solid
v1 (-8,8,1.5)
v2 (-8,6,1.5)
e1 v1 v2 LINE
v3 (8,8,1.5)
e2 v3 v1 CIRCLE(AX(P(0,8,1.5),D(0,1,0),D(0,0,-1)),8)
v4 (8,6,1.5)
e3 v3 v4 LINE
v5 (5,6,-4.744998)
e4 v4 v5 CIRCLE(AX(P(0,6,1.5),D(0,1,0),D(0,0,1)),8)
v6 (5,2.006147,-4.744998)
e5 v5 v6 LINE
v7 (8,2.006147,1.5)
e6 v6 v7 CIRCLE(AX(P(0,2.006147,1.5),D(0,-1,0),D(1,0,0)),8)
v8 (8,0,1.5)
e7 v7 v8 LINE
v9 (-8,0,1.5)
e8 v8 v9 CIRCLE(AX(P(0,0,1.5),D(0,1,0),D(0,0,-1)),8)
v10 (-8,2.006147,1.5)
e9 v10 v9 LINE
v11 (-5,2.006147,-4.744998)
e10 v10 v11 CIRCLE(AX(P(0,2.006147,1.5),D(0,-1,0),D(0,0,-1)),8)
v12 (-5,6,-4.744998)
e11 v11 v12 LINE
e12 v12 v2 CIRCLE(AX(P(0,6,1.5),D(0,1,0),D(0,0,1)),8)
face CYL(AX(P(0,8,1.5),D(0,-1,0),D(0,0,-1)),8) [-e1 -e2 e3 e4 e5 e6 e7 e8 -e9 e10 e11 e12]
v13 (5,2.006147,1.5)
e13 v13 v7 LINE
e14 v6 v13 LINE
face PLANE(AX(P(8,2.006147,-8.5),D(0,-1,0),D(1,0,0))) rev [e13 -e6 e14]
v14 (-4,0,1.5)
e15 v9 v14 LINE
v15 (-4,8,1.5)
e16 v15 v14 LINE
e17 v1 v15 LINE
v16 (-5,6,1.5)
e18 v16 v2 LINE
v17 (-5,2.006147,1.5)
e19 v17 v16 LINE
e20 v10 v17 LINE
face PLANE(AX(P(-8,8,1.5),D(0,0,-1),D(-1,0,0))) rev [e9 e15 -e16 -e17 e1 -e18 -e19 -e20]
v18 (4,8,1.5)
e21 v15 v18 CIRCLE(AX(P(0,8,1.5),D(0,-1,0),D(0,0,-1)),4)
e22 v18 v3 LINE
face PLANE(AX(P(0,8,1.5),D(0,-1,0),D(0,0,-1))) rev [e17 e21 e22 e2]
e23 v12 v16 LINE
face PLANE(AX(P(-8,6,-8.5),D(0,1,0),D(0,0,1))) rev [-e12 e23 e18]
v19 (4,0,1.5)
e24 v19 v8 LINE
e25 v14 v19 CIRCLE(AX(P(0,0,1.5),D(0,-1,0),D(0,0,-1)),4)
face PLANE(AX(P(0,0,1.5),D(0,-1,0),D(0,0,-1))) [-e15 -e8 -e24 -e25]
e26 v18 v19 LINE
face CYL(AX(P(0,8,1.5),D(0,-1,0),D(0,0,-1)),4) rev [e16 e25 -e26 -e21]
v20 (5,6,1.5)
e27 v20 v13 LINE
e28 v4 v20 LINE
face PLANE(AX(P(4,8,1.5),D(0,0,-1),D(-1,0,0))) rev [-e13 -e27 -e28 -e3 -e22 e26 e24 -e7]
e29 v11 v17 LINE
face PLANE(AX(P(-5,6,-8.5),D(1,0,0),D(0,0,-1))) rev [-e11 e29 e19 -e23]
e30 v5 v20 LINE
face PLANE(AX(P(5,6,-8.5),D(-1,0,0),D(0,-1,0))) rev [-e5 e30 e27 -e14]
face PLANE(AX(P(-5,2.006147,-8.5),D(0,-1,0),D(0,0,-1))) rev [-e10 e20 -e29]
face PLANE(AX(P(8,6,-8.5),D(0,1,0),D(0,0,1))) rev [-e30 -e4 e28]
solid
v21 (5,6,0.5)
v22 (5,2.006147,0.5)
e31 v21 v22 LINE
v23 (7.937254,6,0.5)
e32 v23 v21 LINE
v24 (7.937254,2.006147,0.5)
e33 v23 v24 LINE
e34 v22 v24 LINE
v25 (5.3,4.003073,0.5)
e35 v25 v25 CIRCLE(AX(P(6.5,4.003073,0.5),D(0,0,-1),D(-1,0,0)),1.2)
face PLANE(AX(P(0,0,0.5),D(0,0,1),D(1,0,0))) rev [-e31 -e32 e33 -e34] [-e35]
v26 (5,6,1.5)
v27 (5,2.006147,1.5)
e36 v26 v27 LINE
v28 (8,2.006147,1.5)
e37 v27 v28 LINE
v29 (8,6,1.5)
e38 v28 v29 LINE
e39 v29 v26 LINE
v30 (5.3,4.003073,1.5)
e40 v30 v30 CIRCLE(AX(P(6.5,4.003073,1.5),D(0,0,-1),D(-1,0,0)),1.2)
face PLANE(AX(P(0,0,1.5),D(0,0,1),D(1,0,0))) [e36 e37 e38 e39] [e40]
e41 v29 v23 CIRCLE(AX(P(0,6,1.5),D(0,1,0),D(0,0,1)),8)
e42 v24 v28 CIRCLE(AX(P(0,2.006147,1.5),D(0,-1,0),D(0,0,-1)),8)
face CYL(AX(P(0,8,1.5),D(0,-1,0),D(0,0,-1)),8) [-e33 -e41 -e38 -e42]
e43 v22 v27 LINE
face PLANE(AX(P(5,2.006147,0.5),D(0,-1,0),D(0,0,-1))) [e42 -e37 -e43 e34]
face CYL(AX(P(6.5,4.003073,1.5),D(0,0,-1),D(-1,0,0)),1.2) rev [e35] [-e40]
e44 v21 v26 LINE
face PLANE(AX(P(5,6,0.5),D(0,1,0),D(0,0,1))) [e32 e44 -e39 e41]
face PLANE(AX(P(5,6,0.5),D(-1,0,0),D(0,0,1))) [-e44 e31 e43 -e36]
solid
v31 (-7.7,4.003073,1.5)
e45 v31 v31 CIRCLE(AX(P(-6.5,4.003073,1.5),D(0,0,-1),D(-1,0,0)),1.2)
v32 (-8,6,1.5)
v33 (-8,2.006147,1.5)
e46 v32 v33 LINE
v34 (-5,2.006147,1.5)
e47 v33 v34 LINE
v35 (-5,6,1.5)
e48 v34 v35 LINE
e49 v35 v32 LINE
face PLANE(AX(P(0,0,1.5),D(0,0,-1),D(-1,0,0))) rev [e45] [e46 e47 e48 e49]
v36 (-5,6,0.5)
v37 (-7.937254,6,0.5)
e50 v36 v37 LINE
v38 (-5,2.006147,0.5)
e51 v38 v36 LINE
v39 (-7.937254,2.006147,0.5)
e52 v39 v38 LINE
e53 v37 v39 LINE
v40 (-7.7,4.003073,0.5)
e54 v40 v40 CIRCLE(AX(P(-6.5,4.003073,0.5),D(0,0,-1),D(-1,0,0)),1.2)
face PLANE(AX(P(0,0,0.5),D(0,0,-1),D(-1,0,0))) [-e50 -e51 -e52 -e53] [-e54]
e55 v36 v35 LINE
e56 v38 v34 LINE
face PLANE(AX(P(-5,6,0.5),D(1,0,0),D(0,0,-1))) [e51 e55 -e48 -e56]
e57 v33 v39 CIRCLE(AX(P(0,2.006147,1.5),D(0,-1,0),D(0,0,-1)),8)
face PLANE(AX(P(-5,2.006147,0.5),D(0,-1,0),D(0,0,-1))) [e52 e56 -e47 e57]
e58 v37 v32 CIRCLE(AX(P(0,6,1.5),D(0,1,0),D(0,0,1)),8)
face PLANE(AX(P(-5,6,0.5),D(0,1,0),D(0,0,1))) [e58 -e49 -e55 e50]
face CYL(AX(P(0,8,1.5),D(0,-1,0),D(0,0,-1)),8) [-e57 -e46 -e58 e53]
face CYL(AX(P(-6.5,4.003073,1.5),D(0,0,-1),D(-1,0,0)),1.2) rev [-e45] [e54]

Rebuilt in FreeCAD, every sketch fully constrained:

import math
import FreeCAD as App
import Part
import Sketcher

V = App.Vector

doc = App.newDocument("Part")
body = doc.addObject("PartDesign::Body", "Body")

# Sketch on XZ plane
sketch1 = doc.addObject("Sketcher::SketchObject", "Sketch")
body.addObject(sketch1)
sketch1.AttachmentSupport = (doc.XZ_Plane, [""])
sketch1.MapMode = "FlatFace"
sketch1.addGeometry([
    Part.LineSegment(V(-8, 1.5, 0), V(-4, 1.5, 0)),
    Part.ArcOfCircle(Part.Circle(V(0, 1.5, 0), V(0, 0, 1), 4), math.radians(180), math.radians(360)),
    Part.LineSegment(V(4, 1.5, 0), V(8, 1.5, 0)),
    Part.ArcOfCircle(Part.Circle(V(0, 1.5, 0), V(0, 0, 1), 8), math.radians(180), math.radians(360)),
], False)
sketch1.addConstraint([
    Sketcher.Constraint("Coincident", 0, 2, 1, 1),
    Sketcher.Constraint("Coincident", 1, 2, 2, 1),
    Sketcher.Constraint("Coincident", 2, 2, 3, 2),
    Sketcher.Constraint("Coincident", 3, 1, 0, 1),
    Sketcher.Constraint("Horizontal", 0),
    Sketcher.Constraint("Horizontal", 2),
    Sketcher.Constraint("Coincident", 3, 3, 1, 3),
    Sketcher.Constraint("Symmetric", 0, 2, 1, 2, -2),
    Sketcher.Constraint("Horizontal", 3, 3, 0, 2),
    Sketcher.Constraint("Radius", 1, 4.0),
    Sketcher.Constraint("Radius", 3, 8.0),
    Sketcher.Constraint("DistanceY", -1, 1, 1, 3, 1.5),
])
pad1 = doc.addObject("PartDesign::Pad", "Pad")
body.addObject(pad1)
pad1.Profile = sketch1
pad1.Length = 8
pad1.Reversed = True

# Sketch on XY plane
sketch2 = doc.addObject("Sketcher::SketchObject", "Sketch001")
body.addObject(sketch2)
sketch2.AttachmentSupport = (doc.XY_Plane, [""])
sketch2.MapMode = "FlatFace"
sketch2.AttachmentOffset = App.Placement(V(0, 0, 1.5), App.Rotation())
sketch2.addGeometry([
    Part.LineSegment(V(-8, 6, 0), V(-8, 2.006147, 0)),  # 0
    Part.LineSegment(V(-8, 2.006147, 0), V(-5, 2.006147, 0)),  # 1
    Part.LineSegment(V(-5, 2.006147, 0), V(-5, 6, 0)),  # 2
    Part.LineSegment(V(-5, 6, 0), V(-8, 6, 0)),  # 3
    Part.LineSegment(V(5, 6, 0), V(5, 2.006147, 0)),  # 4
    Part.LineSegment(V(5, 2.006147, 0), V(8, 2.006147, 0)),  # 5
    Part.LineSegment(V(8, 2.006147, 0), V(8, 6, 0)),  # 6
    Part.LineSegment(V(8, 6, 0), V(5, 6, 0)),  # 7
], False)
sketch2.addConstraint([
    Sketcher.Constraint("Coincident", 0, 2, 1, 1),
    Sketcher.Constraint("Coincident", 1, 2, 2, 1),
    Sketcher.Constraint("Coincident", 2, 2, 3, 1),
    Sketcher.Constraint("Coincident", 3, 2, 0, 1),
    Sketcher.Constraint("Coincident", 4, 2, 5, 1),
    Sketcher.Constraint("Coincident", 5, 2, 6, 1),
    Sketcher.Constraint("Coincident", 6, 2, 7, 1),
    Sketcher.Constraint("Coincident", 7, 2, 4, 1),
    Sketcher.Constraint("Vertical", 0),
    Sketcher.Constraint("Horizontal", 1),
    Sketcher.Constraint("Vertical", 2),
    Sketcher.Constraint("Horizontal", 3),
    Sketcher.Constraint("Vertical", 4),
    Sketcher.Constraint("Horizontal", 5),
    Sketcher.Constraint("Vertical", 6),
    Sketcher.Constraint("Horizontal", 7),
    Sketcher.Constraint("Symmetric", 1, 2, 4, 2, -2),
    Sketcher.Constraint("Symmetric", 3, 2, 6, 2, -2),
    Sketcher.Constraint("DistanceX", 1, 1, 1, 2, 3.0),
    Sketcher.Constraint("DistanceX", 0, 2, -1, 1, 8.0),
    Sketcher.Constraint("DistanceY", -1, 1, 2, 2, 6.0),
    Sketcher.Constraint("DistanceY", 0, 2, 0, 1, 3.993853),
])
pocket1 = doc.addObject("PartDesign::Pocket", "Pocket")
body.addObject(pocket1)
pocket1.Profile = sketch2
pocket1.Length = 10
body2 = doc.addObject("PartDesign::Body", "Body001")

# Sketch on XY plane
sketch3 = doc.addObject("Sketcher::SketchObject", "Sketch002")
body2.addObject(sketch3)
sketch3.AttachmentSupport = (doc.getObject("XY_Plane001"), [""])
sketch3.MapMode = "FlatFace"
sketch3.AttachmentOffset = App.Placement(V(0, 0, 1.5), App.Rotation())
sketch3.addGeometry([
    Part.LineSegment(V(-8, 6, 0), V(-8, 2.006147, 0)),
    Part.LineSegment(V(-8, 2.006147, 0), V(-5, 2.006147, 0)),
    Part.LineSegment(V(-5, 2.006147, 0), V(-5, 6, 0)),
    Part.LineSegment(V(-5, 6, 0), V(-8, 6, 0)),
], False)
sketch3.addConstraint([
    Sketcher.Constraint("Coincident", 0, 2, 1, 1),
    Sketcher.Constraint("Coincident", 1, 2, 2, 1),
    Sketcher.Constraint("Coincident", 2, 2, 3, 1),
    Sketcher.Constraint("Coincident", 3, 2, 0, 1),
    Sketcher.Constraint("Vertical", 0),
    Sketcher.Constraint("Horizontal", 1),
    Sketcher.Constraint("Vertical", 2),
    Sketcher.Constraint("Horizontal", 3),
    Sketcher.Constraint("DistanceX", 1, 1, 1, 2, 3.0),
    Sketcher.Constraint("DistanceX", 0, 2, -1, 1, 8.0),
    Sketcher.Constraint("DistanceY", -1, 1, 2, 2, 6.0),
    Sketcher.Constraint("DistanceY", 0, 2, 0, 1, 3.993853),
])
pad2 = doc.addObject("PartDesign::Pad", "Pad001")
body2.addObject(pad2)
pad2.Profile = sketch3
pad2.Length = 1
pad2.Reversed = True
body3 = doc.addObject("PartDesign::Body", "Body002")

# Sketch on XY plane
sketch4 = doc.addObject("Sketcher::SketchObject", "Sketch003")
body3.addObject(sketch4)
sketch4.AttachmentSupport = (doc.getObject("XY_Plane002"), [""])
sketch4.MapMode = "FlatFace"
sketch4.AttachmentOffset = App.Placement(V(0, 0, 1.5), App.Rotation())
sketch4.addGeometry([
    Part.LineSegment(V(5, 6, 0), V(5, 2.006147, 0)),
    Part.LineSegment(V(5, 2.006147, 0), V(8, 2.006147, 0)),
    Part.LineSegment(V(8, 2.006147, 0), V(8, 6, 0)),
    Part.LineSegment(V(8, 6, 0), V(5, 6, 0)),
], False)
sketch4.addConstraint([
    Sketcher.Constraint("Coincident", 0, 2, 1, 1),
    Sketcher.Constraint("Coincident", 1, 2, 2, 1),
    Sketcher.Constraint("Coincident", 2, 2, 3, 1),
    Sketcher.Constraint("Coincident", 3, 2, 0, 1),
    Sketcher.Constraint("Vertical", 0),
    Sketcher.Constraint("Horizontal", 1),
    Sketcher.Constraint("Vertical", 2),
    Sketcher.Constraint("Horizontal", 3),
    Sketcher.Constraint("DistanceX", 1, 1, 1, 2, 3.0),
    Sketcher.Constraint("DistanceX", -1, 1, 0, 2, 5.0),
    Sketcher.Constraint("DistanceY", -1, 1, 2, 2, 6.0),
    Sketcher.Constraint("DistanceY", 0, 2, 0, 1, 3.993853),
])
pad3 = doc.addObject("PartDesign::Pad", "Pad002")
body3.addObject(pad3)
pad3.Profile = sketch4
pad3.Length = 1
pad3.Reversed = True
body4 = doc.addObject("PartDesign::Body", "Body003")
body4.AllowCompound = True

# Sketch on XZ plane
sketch5 = doc.addObject("Sketcher::SketchObject", "Sketch004")
body4.addObject(sketch5)
sketch5.AttachmentSupport = (doc.getObject("XZ_Plane003"), [""])
sketch5.MapMode = "FlatFace"
sketch5.addGeometry([
    Part.ArcOfCircle(Part.Circle(V(0, 1.5, 0), V(0, 0, 1), 8), math.radians(180), math.radians(187.180756)),  # 0
    Part.LineSegment(V(-8, 1.5, 0), V(-8, 0.5, 0)),  # 1
    Part.LineSegment(V(-8, 0.5, 0), V(-7.937254, 0.5, 0)),  # 2
    Part.ArcOfCircle(Part.Circle(V(0, 1.5, 0), V(0, 0, 1), 8), math.radians(-7.180756), math.radians(0)),  # 3
    Part.LineSegment(V(7.937254, 0.5, 0), V(8, 0.5, 0)),  # 4
    Part.LineSegment(V(8, 0.5, 0), V(8, 1.5, 0)),  # 5
], False)
sketch5.addConstraint([
    Sketcher.Constraint("Tangent", 0, 1, 1, 1),
    Sketcher.Constraint("Coincident", 1, 2, 2, 1),
    Sketcher.Constraint("Coincident", 2, 2, 0, 2),
    Sketcher.Constraint("Coincident", 3, 1, 4, 1),
    Sketcher.Constraint("Coincident", 4, 2, 5, 1),
    Sketcher.Constraint("Tangent", 5, 2, 3, 2),
    Sketcher.Constraint("Vertical", 1),
    Sketcher.Constraint("Horizontal", 2),
    Sketcher.Constraint("Horizontal", 4),
    Sketcher.Constraint("Vertical", 5),
    Sketcher.Constraint("Coincident", 3, 3, 0, 3),
    Sketcher.Constraint("Equal", 0, 3),
    Sketcher.Constraint("Symmetric", 2, 2, 3, 1, -2),
    Sketcher.Constraint("Radius", 0, 8.0),
    Sketcher.Constraint("DistanceY", 1, 2, 1, 1, 1.0),
    Sketcher.Constraint("DistanceY", -1, 1, 0, 3, 1.5),
])
pad4 = doc.addObject("PartDesign::Pad", "Pad003")
body4.addObject(pad4)
pad4.Profile = sketch5
pad4.Length = 8
pad4.Reversed = True
doc.recompute()

body5 = doc.addObject("PartDesign::Body", "Body004")
body5.BaseFeature = body4
boolean = doc.addObject("PartDesign::Boolean", "Boolean")
body2.addObject(boolean)
boolean.Type = "Cut"
boolean.addObjects([body5])
doc.recompute()

boolean2 = doc.addObject("PartDesign::Boolean", "Boolean001")
body3.addObject(boolean2)
boolean2.Type = "Cut"
boolean2.addObjects([body4])
body6 = doc.addObject("PartDesign::Body", "Body005")
body6.AllowCompound = True

# Sketch on XY plane
sketch6 = doc.addObject("Sketcher::SketchObject", "Sketch005")
body6.addObject(sketch6)
sketch6.AttachmentSupport = (doc.getObject("XY_Plane005"), [""])
sketch6.MapMode = "FlatFace"
sketch6.AttachmentOffset = App.Placement(V(0, 0, 0.5), App.Rotation())
sketch6.addGeometry([
    Part.Circle(V(-6.5, 4.003073, 0), V(0, 0, 1), 1.2),
    Part.Circle(V(6.5, 4.003073, 0), V(0, 0, 1), 1.2),
], False)
sketch6.addConstraint([
    Sketcher.Constraint("Equal", 0, 1),
    Sketcher.Constraint("Symmetric", 0, 3, 1, 3, -2),
    Sketcher.Constraint("Diameter", 0, 2.4),
    Sketcher.Constraint("DistanceX", 0, 3, 1, 3, 13.0),
    Sketcher.Constraint("DistanceY", -1, 1, 0, 3, 4.003073),
])
pad5 = doc.addObject("PartDesign::Pad", "Pad004")
body6.addObject(pad5)
pad5.Profile = sketch6
pad5.Length = 1
doc.recompute()

body7 = doc.addObject("PartDesign::Body", "Body006")
body7.BaseFeature = body6
boolean3 = doc.addObject("PartDesign::Boolean", "Boolean002")
body2.addObject(boolean3)
boolean3.Type = "Cut"
boolean3.addObjects([body7])
doc.recompute()

boolean4 = doc.addObject("PartDesign::Boolean", "Boolean003")
body3.addObject(boolean4)
boolean4.Type = "Cut"
boolean4.addObjects([body6])

doc.recompute()
